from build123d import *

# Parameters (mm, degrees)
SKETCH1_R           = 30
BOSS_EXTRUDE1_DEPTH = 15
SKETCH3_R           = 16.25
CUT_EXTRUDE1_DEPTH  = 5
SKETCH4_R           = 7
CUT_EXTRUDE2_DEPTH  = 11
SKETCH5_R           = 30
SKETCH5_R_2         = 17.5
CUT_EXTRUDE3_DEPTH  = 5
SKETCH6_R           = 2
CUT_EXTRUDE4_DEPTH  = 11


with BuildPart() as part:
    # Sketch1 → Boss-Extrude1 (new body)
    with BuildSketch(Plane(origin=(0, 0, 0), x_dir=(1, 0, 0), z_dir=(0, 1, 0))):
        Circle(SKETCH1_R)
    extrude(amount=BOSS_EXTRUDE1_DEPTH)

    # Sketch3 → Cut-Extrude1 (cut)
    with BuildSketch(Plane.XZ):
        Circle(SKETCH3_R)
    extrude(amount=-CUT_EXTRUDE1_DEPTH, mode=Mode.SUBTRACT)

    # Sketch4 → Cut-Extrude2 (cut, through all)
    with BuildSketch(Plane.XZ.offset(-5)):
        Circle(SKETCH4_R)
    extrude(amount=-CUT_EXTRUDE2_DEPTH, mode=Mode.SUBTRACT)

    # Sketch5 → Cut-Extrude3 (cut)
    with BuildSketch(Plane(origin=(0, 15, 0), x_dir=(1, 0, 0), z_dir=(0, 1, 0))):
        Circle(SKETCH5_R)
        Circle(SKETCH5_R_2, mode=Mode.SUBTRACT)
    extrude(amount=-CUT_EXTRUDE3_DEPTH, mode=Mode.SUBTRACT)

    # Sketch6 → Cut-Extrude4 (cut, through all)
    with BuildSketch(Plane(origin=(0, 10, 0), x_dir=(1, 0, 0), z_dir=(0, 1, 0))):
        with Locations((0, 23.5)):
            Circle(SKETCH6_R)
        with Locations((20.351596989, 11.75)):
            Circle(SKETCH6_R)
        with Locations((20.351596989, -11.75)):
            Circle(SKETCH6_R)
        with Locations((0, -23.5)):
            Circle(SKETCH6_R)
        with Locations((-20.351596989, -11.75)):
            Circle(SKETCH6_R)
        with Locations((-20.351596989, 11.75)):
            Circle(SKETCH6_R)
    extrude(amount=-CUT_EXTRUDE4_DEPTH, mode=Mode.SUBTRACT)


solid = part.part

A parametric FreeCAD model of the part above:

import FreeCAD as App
import Part
import Sketcher

doc = App.newDocument("Part")
body = doc.addObject("PartDesign::Body", "Body")

# Sketch on XZ plane
sketch1 = doc.addObject("Sketcher::SketchObject", "Sketch")
body.addObject(sketch1)
sketch1.AttachmentSupport = (doc.XZ_Plane, [""])
sketch1.MapMode = "FlatFace"
sketch1.addGeometry(Part.Circle(App.Vector(0, 0, 0), App.Vector(0, 0, 1), 30), False)
sketch1.addConstraint(Sketcher.Constraint("Coincident", 0, 3, -1, 1))
sketch1.addConstraint(Sketcher.Constraint("Diameter", 0, 60.0))
pad1 = doc.addObject("PartDesign::Pad", "Pad")
body.addObject(pad1)
pad1.Profile = sketch1
pad1.Length = 15
pad1.Reversed = True

# Sketch on XZ plane
sketch2 = doc.addObject("Sketcher::SketchObject", "Sketch001")
body.addObject(sketch2)
sketch2.AttachmentSupport = (doc.XZ_Plane, [""])
sketch2.MapMode = "FlatFace"
sketch2.addGeometry(Part.Circle(App.Vector(0, 0, 0), App.Vector(0, 0, 1), 16.25), False)
sketch2.addConstraint(Sketcher.Constraint("Coincident", 0, 3, -1, 1))
sketch2.addConstraint(Sketcher.Constraint("Diameter", 0, 32.5))
pocket1 = doc.addObject("PartDesign::Pocket", "Pocket")
body.addObject(pocket1)
pocket1.Profile = sketch2
pocket1.Length = 5

# Sketch on XZ plane
sketch3 = doc.addObject("Sketcher::SketchObject", "Sketch002")
body.addObject(sketch3)
sketch3.AttachmentSupport = (doc.XZ_Plane, [""])
sketch3.MapMode = "FlatFace"
sketch3.AttachmentOffset = App.Placement(App.Vector(0, 0, -5), App.Rotation())
sketch3.addGeometry(Part.Circle(App.Vector(0, 0, 0), App.Vector(0, 0, 1), 7), False)
sketch3.addConstraint(Sketcher.Constraint("Coincident", 0, 3, -1, 1))
sketch3.addConstraint(Sketcher.Constraint("Diameter", 0, 14.0))
pocket2 = doc.addObject("PartDesign::Pocket", "Pocket001")
body.addObject(pocket2)
pocket2.Profile = sketch3
pocket2.Type = "ThroughAll"

# Sketch on XZ plane
sketch4 = doc.addObject("Sketcher::SketchObject", "Sketch003")
body.addObject(sketch4)
sketch4.AttachmentSupport = (doc.XZ_Plane, [""])
sketch4.MapMode = "FlatFace"
sketch4.AttachmentOffset = App.Placement(App.Vector(0, 0, -15), App.Rotation())
sketch4.addGeometry(Part.Circle(App.Vector(0, 0, 0), App.Vector(0, 0, 1), 30), False)
sketch4.addGeometry(Part.Circle(App.Vector(0, 0, 0), App.Vector(0, 0, 1), 17.5), False)
sketch4.addConstraint(Sketcher.Constraint("Coincident", 0, 3, -1, 1))
sketch4.addConstraint(Sketcher.Constraint("Coincident", 1, 3, -1, 1))
sketch4.addConstraint(Sketcher.Constraint("Diameter", 0, 60.0))
sketch4.addConstraint(Sketcher.Constraint("Diameter", 1, 35.0))
pocket3 = doc.addObject("PartDesign::Pocket", "Pocket002")
body.addObject(pocket3)
pocket3.Profile = sketch4
pocket3.Length = 5
pocket3.Reversed = True

# Sketch on XZ plane
sketch5 = doc.addObject("Sketcher::SketchObject", "Sketch004")
body.addObject(sketch5)
sketch5.AttachmentSupport = (doc.XZ_Plane, [""])
sketch5.MapMode = "FlatFace"
sketch5.AttachmentOffset = App.Placement(App.Vector(0, 0, -10), App.Rotation())
sketch5.addGeometry(Part.Circle(App.Vector(0, -23.5, 0), App.Vector(0, 0, 1), 2), False)
sketch5.addGeometry(Part.Circle(App.Vector(20.351597, -11.75, 0), App.Vector(0, 0, 1), 2), False)
sketch5.addGeometry(Part.Circle(App.Vector(20.351597, 11.75, 0), App.Vector(0, 0, 1), 2), False)
sketch5.addGeometry(Part.Circle(App.Vector(0, 23.5, 0), App.Vector(0, 0, 1), 2), False)
sketch5.addGeometry(Part.Circle(App.Vector(-20.351597, 11.75, 0), App.Vector(0, 0, 1), 2), False)
sketch5.addGeometry(Part.Circle(App.Vector(-20.351597, -11.75, 0), App.Vector(0, 0, 1), 2), False)
sketch5.addConstraint(Sketcher.Constraint("Equal", 0, 1))
sketch5.addConstraint(Sketcher.Constraint("Equal", 1, 2))
sketch5.addConstraint(Sketcher.Constraint("Equal", 2, 3))
sketch5.addConstraint(Sketcher.Constraint("Equal", 3, 4))
sketch5.addConstraint(Sketcher.Constraint("Equal", 4, 5))
sketch5.addConstraint(Sketcher.Constraint("Symmetric", 0, 3, 3, 3, -1, 1))
sketch5.addConstraint(Sketcher.Constraint("Symmetric", 1, 3, 4, 3, -1, 1))
sketch5.addConstraint(Sketcher.Constraint("Symmetric", 2, 3, 5, 3, -1, 1))
sketch5.addConstraint(Sketcher.Constraint("Symmetric", 2, 3, 4, 3, -2))
sketch5.addConstraint(Sketcher.Constraint("PointOnObject", 0, 3, -2))
sketch5.addConstraint(Sketcher.Constraint("Diameter", 0, 4.0))
sketch5.addConstraint(Sketcher.Constraint("DistanceY", 0, 3, 3, 3, 47.0))
sketch5.addConstraint(Sketcher.Constraint("DistanceY", 1, 3, 2, 3, 23.5))
sketch5.addConstraint(Sketcher.Constraint("DistanceX", -1, 1, 1, 3, 20.351597))
pocket4 = doc.addObject("PartDesign::Pocket", "Pocket003")
body.addObject(pocket4)
pocket4.Profile = sketch5
pocket4.Type = "ThroughAll"
pocket4.Reversed = True

doc.recompute()
